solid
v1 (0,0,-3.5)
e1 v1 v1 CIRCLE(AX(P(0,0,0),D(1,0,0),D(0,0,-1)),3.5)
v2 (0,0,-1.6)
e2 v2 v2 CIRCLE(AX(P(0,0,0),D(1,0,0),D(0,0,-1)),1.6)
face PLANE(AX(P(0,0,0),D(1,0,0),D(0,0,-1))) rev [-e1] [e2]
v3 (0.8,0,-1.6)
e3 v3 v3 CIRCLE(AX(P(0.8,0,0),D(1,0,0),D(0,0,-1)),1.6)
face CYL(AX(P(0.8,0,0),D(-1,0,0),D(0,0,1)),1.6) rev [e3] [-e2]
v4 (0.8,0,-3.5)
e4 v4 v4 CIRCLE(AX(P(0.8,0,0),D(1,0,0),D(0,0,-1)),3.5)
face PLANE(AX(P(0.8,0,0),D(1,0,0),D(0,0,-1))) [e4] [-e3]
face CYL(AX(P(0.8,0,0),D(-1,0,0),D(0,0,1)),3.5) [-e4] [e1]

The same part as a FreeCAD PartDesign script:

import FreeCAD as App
import Part
import Sketcher
from FreeCAD import Vector

doc = App.newDocument("Part")
body = doc.addObject("PartDesign::Body", "Body")

# Sketch on YZ plane
sketch1 = body.newObject("Sketcher::SketchObject", "Sketch")
sketch1.AttachmentSupport = (doc.getObject("YZ_Plane"), [""])
sketch1.MapMode = "FlatFace"
sketch1.addGeometry([
    Part.Circle(Vector(0, 0, 0), Vector(0, 0, 1), 3.5),
    Part.Circle(Vector(0, 0, 0), Vector(0, 0, 1), 1.6),
], False)
sketch1.addConstraint([
    Sketcher.Constraint("Coincident", 0, 3, -1, 1),
    Sketcher.Constraint("Coincident", 1, 3, -1, 1),
    Sketcher.Constraint("Diameter", 0, 7.0),
    Sketcher.Constraint("Diameter", 1, 3.2),
])
pad1 = body.newObject("PartDesign::Pad", "Pad")
pad1.Profile = sketch1
pad1.Length = 0.8

doc.recompute()
